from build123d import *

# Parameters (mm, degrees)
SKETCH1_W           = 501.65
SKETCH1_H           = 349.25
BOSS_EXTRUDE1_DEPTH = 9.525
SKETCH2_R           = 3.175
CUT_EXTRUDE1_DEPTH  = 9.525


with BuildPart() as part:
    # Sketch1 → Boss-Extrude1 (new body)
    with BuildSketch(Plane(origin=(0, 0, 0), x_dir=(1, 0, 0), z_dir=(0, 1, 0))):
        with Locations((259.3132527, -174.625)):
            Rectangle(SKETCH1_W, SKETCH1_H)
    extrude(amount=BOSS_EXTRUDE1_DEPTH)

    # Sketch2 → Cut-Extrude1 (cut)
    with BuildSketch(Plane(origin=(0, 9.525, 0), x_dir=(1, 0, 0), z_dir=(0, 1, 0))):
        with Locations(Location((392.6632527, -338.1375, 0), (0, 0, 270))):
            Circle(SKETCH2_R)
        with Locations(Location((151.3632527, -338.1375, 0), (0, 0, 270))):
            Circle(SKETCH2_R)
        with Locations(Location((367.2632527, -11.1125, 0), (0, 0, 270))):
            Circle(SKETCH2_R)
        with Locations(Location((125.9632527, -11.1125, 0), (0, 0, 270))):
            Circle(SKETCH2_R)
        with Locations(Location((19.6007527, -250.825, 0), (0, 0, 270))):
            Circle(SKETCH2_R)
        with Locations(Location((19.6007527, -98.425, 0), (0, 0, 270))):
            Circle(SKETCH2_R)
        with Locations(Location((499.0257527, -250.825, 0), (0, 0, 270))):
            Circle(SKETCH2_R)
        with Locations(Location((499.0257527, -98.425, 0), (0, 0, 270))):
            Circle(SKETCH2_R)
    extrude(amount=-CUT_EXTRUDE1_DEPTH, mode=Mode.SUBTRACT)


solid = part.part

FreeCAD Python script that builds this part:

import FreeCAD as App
import Part
import Sketcher

V = App.Vector
Q = App.Units.Quantity

doc = App.newDocument("Part")
body = doc.addObject("PartDesign::Body", "Body")

# Sketch on XZ plane
sketch1 = body.newObject("Sketcher::SketchObject", "Sketch")
sketch1.AttachmentSupport = (doc.getObject("XZ_Plane"), [""])
sketch1.MapMode = "FlatFace"
sketch1.addGeometry([
    Part.LineSegment(V(8, 0, 0), V(8, 349, 0)),
    Part.LineSegment(V(8, 349, 0), V(510, 349, 0)),
    Part.LineSegment(V(510, 349, 0), V(510, 0, 0)),
    Part.LineSegment(V(510, 0, 0), V(8, 0, 0)),
], False)
sketch1.addConstraint([
    Sketcher.Constraint("Coincident", 0, 2, 1, 1),
    Sketcher.Constraint("Coincident", 1, 2, 2, 1),
    Sketcher.Constraint("Coincident", 2, 2, 3, 1),
    Sketcher.Constraint("Coincident", 3, 2, 0, 1),
    Sketcher.Constraint("Vertical", 0),
    Sketcher.Constraint("Horizontal", 1),
    Sketcher.Constraint("Vertical", 2),
    Sketcher.Constraint("Horizontal", 3),
    Sketcher.Constraint("PointOnObject", 2, 2, -1),
    Sketcher.Constraint("DistanceX", 1, 1, 1, 2, Q("19.75 in")),
    Sketcher.Constraint("DistanceY", 0, 1, 0, 2, Q("13.75 in")),
    Sketcher.Constraint("DistanceX", -1, 1, 0, 2, 8.488253),
])
pad1 = body.newObject("PartDesign::Pad", "Pad")
pad1.Profile = sketch1
pad1.Length = Q("0.375 in")
pad1.Reversed = True

# Sketch on XZ plane
sketch2 = body.newObject("Sketcher::SketchObject", "Sketch001")
sketch2.AttachmentSupport = (doc.getObject("XZ_Plane"), [""])
sketch2.MapMode = "FlatFace"
sketch2.AttachmentOffset = App.Placement(V(0, 0, -0.375 * 25.4), App.Rotation())
sketch2.addGeometry([
    Part.Circle(V(392.7, 338.1, 0), V(0, 0, 1), 3.2),  # 0
    Part.Circle(V(151.4, 338.1, 0), V(0, 0, 1), 3.2),  # 1
    Part.Circle(V(367.3, 11.1, 0), V(0, 0, 1), 3.2),  # 2
    Part.Circle(V(126, 11.1, 0), V(0, 0, 1), 3.2),  # 3
    Part.Circle(V(19.6, 250.8, 0), V(0, 0, 1), 3.2),  # 4
    Part.Circle(V(19.6, 98.4, 0), V(0, 0, 1), 3.2),  # 5
    Part.Circle(V(499, 250.8, 0), V(0, 0, 1), 3.2),  # 6
    Part.Circle(V(499, 98.4, 0), V(0, 0, 1), 3.2),  # 7
], False)
sketch2.addConstraint([
    Sketcher.Constraint("Equal", 0, 1),
    Sketcher.Constraint("Equal", 1, 2),
    Sketcher.Constraint("Equal", 2, 3),
    Sketcher.Constraint("Equal", 3, 4),
    Sketcher.Constraint("Equal", 4, 5),
    Sketcher.Constraint("Equal", 5, 6),
    Sketcher.Constraint("Equal", 6, 7),
    Sketcher.Constraint("Horizontal", 0, 3, 1, 3),
    Sketcher.Constraint("Horizontal", 2, 3, 3, 3),
    Sketcher.Constraint("Horizontal", 4, 3, 6, 3),
    Sketcher.Constraint("Horizontal", 5, 3, 7, 3),
    Sketcher.Constraint("Vertical", 4, 3, 5, 3),
    Sketcher.Constraint("Vertical", 6, 3, 7, 3),
    Sketcher.Constraint("Diameter", 0, Q("0.25 in")),
    Sketcher.Constraint("DistanceX", 2, 3, 0, 3, Q("1 in")),
    Sketcher.Constraint("DistanceX", 3, 3, 1, 3, Q("1 in")),
    Sketcher.Constraint("DistanceY", 5, 3, 4, 3, Q("6 in")),
    Sketcher.Constraint("DistanceX", 1, 3, 0, 3, Q("9.5 in")),
    Sketcher.Constraint("DistanceY", -1, 1, 0, 3, Q("13.3125 in")),
    Sketcher.Constraint("DistanceY", -1, 1, 2, 3, Q("0.4375 in")),
    Sketcher.Constraint("DistanceY", -1, 1, 4, 3, Q("9.875 in")),
    Sketcher.Constraint("DistanceX", 4, 3, 1, 3, Q("5.1875 in")),
    Sketcher.Constraint("DistanceX", 0, 3, 6, 3, Q("4.1875 in")),
    Sketcher.Constraint("DistanceX", -1, 1, 0, 3, 392.663253),
])
pocket1 = body.newObject("PartDesign::Pocket", "Pocket")
pocket1.Profile = sketch2
pocket1.Length = Q("0.375 in")
pocket1.Reversed = True

doc.recompute()
